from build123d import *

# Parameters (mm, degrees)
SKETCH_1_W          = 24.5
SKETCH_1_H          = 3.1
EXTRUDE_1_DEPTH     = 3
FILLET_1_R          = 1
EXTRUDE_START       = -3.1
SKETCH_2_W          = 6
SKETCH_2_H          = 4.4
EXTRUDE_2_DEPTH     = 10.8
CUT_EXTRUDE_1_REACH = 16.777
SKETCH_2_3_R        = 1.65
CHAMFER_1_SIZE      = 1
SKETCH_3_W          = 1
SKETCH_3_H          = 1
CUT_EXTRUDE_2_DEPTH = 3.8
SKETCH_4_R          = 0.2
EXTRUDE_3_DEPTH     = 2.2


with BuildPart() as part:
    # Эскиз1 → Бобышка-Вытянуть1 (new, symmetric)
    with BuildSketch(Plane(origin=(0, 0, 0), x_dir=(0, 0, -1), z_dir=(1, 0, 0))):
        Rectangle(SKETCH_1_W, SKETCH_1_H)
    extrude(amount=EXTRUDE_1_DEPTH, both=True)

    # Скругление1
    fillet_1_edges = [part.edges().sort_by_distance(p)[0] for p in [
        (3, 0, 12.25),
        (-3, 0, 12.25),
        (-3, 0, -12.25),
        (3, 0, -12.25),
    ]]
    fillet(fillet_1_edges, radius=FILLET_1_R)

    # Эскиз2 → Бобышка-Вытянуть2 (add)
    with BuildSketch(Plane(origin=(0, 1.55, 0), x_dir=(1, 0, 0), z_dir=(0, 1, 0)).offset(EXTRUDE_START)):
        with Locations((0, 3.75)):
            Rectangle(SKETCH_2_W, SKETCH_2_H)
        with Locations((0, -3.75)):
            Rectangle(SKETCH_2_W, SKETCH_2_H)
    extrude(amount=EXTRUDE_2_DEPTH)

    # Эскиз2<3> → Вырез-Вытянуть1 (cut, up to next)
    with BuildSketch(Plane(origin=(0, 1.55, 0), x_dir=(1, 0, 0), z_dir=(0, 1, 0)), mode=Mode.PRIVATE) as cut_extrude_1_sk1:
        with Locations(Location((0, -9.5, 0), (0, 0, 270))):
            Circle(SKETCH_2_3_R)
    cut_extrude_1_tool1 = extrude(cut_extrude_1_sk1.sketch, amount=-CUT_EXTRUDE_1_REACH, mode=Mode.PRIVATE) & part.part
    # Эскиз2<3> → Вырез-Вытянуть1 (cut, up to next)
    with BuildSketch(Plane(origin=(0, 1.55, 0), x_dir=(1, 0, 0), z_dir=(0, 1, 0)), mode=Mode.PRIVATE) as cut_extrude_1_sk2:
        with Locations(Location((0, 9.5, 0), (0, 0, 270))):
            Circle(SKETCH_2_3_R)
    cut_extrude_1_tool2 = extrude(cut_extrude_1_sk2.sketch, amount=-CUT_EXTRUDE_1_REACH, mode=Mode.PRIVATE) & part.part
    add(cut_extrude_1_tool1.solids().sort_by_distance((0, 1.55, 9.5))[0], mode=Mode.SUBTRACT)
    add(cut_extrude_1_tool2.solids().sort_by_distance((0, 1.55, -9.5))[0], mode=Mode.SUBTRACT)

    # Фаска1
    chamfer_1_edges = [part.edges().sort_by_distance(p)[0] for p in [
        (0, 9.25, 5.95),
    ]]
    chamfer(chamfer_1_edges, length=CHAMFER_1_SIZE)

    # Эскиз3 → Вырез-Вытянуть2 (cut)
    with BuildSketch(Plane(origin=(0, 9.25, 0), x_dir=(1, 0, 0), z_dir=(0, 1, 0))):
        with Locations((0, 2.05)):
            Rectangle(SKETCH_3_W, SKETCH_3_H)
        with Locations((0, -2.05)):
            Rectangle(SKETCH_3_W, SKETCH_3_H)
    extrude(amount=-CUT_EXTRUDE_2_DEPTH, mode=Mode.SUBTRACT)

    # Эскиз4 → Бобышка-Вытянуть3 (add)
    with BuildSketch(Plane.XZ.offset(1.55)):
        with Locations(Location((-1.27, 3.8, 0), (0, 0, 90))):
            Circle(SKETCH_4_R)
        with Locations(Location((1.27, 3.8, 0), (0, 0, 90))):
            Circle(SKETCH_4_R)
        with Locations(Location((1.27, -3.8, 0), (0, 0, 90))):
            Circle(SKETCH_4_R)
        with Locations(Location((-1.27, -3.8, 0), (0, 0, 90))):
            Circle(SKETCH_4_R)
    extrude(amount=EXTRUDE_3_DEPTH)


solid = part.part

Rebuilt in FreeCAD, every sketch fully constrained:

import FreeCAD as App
import Part
import Sketcher
from FreeCAD import Vector
Q = App.Units.Quantity


def edges_at(feature, points):
    """Names of the edges that pass closest to the given points."""
    edges = feature.Shape.Edges
    near = lambda p: min(range(len(edges)), key=lambda i: edges[i].distToShape(Part.Vertex(*p))[0])
    return sorted({f"Edge{near(p) + 1}" for p in points})


def add_polygon(sketch, points):
    """Adds a closed chain of lines whose ends are joined by coincident constraints."""
    first, n = sketch.GeometryCount, len(points)
    for a, b in zip(points, points[1:] + points[:1]):
        sketch.addGeometry(Part.LineSegment(App.Vector(*a, 0), App.Vector(*b, 0)), False)
    for i in range(n):
        sketch.addConstraint(Sketcher.Constraint("Coincident", first + i, 2, first + (i + 1) % n, 1))

doc = App.newDocument("Part")
body = doc.addObject("PartDesign::Body", "Body")

# Sketch on YZ plane
sketch1 = body.newObject("Sketcher::SketchObject", "Sketch")
sketch1.AttachmentSupport = (doc.getObject("YZ_Plane"), [""])
sketch1.MapMode = "FlatFace"
add_polygon(sketch1, [(1.55, 12.25), (-1.55, 12.25), (-1.55, -12.25), (1.55, -12.25)])  # lines 0-3
sketch1.addConstraint([
    Sketcher.Constraint("Horizontal", 0),
    Sketcher.Constraint("Vertical", 1),
    Sketcher.Constraint("Horizontal", 2),
    Sketcher.Constraint("Vertical", 3),
    Sketcher.Constraint("Symmetric", 0, 2, 2, 2, -1, 1),
    Sketcher.Constraint("DistanceX", 0, 2, 0, 1, Q("3.1 mm")),
    Sketcher.Constraint("DistanceY", 1, 2, 1, 1, Q("24.5 mm")),
])
pad1 = body.newObject("PartDesign::Pad", "Pad")
pad1.Profile = sketch1
pad1.Length = 6
pad1.Midplane = True
doc.recompute()

fillet = body.newObject("PartDesign::Fillet", "Fillet")
fillet.Base = (pad1, edges_at(pad1, [
    (3, 0, 12.25),
    (-3, 0, 12.25),
    (-3, 0, -12.25),
    (3, 0, -12.25),
]))
fillet.Radius = 1

# Sketch on XZ plane
sketch2 = body.newObject("Sketcher::SketchObject", "Sketch001")
sketch2.AttachmentSupport = (doc.getObject("XZ_Plane"), [""])
sketch2.MapMode = "FlatFace"
sketch2.AttachmentOffset = App.Placement(Vector(0, 0, 1.55), App.Rotation())
add_polygon(sketch2, [(-3, -5.95), (-3, -1.55), (3, -1.55), (3, -5.95)])  # lines 0-3
add_polygon(sketch2, [(-3, 1.55), (-3, 5.95), (3, 5.95), (3, 1.55)])  # lines 4-7
sketch2.addConstraint([
    Sketcher.Constraint("Vertical", 0),
    Sketcher.Constraint("Horizontal", 1),
    Sketcher.Constraint("Vertical", 2),
    Sketcher.Constraint("Horizontal", 3),
    Sketcher.Constraint("Vertical", 4),
    Sketcher.Constraint("Horizontal", 5),
    Sketcher.Constraint("Vertical", 6),
    Sketcher.Constraint("Horizontal", 7),
    Sketcher.Constraint("Symmetric", 2, 2, 4, 2, -1, 1),
    Sketcher.Constraint("Symmetric", 0, 2, 6, 2, -1, 1),
    Sketcher.Constraint("Vertical", 3, 2, 4, 2),
    Sketcher.Constraint("DistanceX", 1, 1, 1, 2, Q("6 mm")),
    Sketcher.Constraint("DistanceY", 0, 1, 0, 2, Q("4.4 mm")),
    Sketcher.Constraint("DistanceY", 0, 2, 4, 2, Q("7.5 mm")),
])
pad2 = body.newObject("PartDesign::Pad", "Pad001")
pad2.Profile = sketch2
pad2.Length = 10.8
pad2.Reversed = True

# Sketch on XZ plane
sketch3 = body.newObject("Sketcher::SketchObject", "Sketch002")
sketch3.AttachmentSupport = (doc.getObject("XZ_Plane"), [""])
sketch3.MapMode = "FlatFace"
sketch3.AttachmentOffset = App.Placement(Vector(0, 0, -1.55), App.Rotation())
sketch3.addGeometry(Part.Circle(Vector(0, 9.5, 0), Vector(0, 0, 1), 1.65), False)
sketch3.addConstraint([
    Sketcher.Constraint("PointOnObject", 0, 3, -2),
    Sketcher.Constraint("Diameter", 0, Q("3.3 mm")),
    Sketcher.Constraint("DistanceY", -1, 1, 0, 3, Q("9.5 mm")),
])
pocket1 = body.newObject("PartDesign::Pocket", "Pocket")
pocket1.Profile = sketch3
pocket1.Type = "UpToFirst"
pocket1.Reversed = True

# Sketch on XZ plane
sketch4 = body.newObject("Sketcher::SketchObject", "Sketch003")
sketch4.AttachmentSupport = (doc.getObject("XZ_Plane"), [""])
sketch4.MapMode = "FlatFace"
sketch4.AttachmentOffset = App.Placement(Vector(0, 0, -1.55), App.Rotation())
sketch4.addGeometry(Part.Circle(Vector(0, -9.5, 0), Vector(0, 0, 1), 1.65), False)
sketch4.addConstraint([
    Sketcher.Constraint("PointOnObject", 0, 3, -2),
    Sketcher.Constraint("Diameter", 0, Q("3.3 mm")),
    Sketcher.Constraint("DistanceY", 0, 3, -1, 1, Q("9.5 mm")),
])
pocket2 = body.newObject("PartDesign::Pocket", "Pocket001")
pocket2.Profile = sketch4
pocket2.Type = "UpToFirst"
pocket2.Reversed = True
doc.recompute()

chamfer = body.newObject("PartDesign::Chamfer", "Chamfer")
chamfer.Base = (pocket2, edges_at(pocket2, [(0, 9.25, 5.95)]))
chamfer.Size = 1

# Sketch on XZ plane
sketch5 = body.newObject("Sketcher::SketchObject", "Sketch004")
sketch5.AttachmentSupport = (doc.getObject("XZ_Plane"), [""])
sketch5.MapMode = "FlatFace"
sketch5.AttachmentOffset = App.Placement(Vector(0, 0, -9.25), App.Rotation())
add_polygon(sketch5, [(-0.5, -2.55), (-0.5, -1.55), (0.5, -1.55), (0.5, -2.55)])  # lines 0-3
add_polygon(sketch5, [(-0.5, 1.55), (-0.5, 2.55), (0.5, 2.55), (0.5, 1.55)])  # lines 4-7
sketch5.addConstraint([
    Sketcher.Constraint("Vertical", 0),
    Sketcher.Constraint("Horizontal", 1),
    Sketcher.Constraint("Vertical", 2),
    Sketcher.Constraint("Horizontal", 3),
    Sketcher.Constraint("Vertical", 4),
    Sketcher.Constraint("Horizontal", 5),
    Sketcher.Constraint("Vertical", 6),
    Sketcher.Constraint("Horizontal", 7),
    Sketcher.Constraint("Symmetric", 2, 2, 4, 2, -1, 1),
    Sketcher.Constraint("Symmetric", 0, 2, 6, 2, -1, 1),
    Sketcher.Constraint("Vertical", 3, 2, 4, 2),
    Sketcher.Constraint("Equal", 7, 0),
    Sketcher.Constraint("DistanceX", 1, 1, 1, 2, Q("1 mm")),
    Sketcher.Constraint("DistanceY", 0, 2, 4, 2, Q("4.1 mm")),
])
pocket3 = body.newObject("PartDesign::Pocket", "Pocket002")
pocket3.Profile = sketch5
pocket3.Length = 3.8
pocket3.Reversed = True

# Sketch on XZ plane
sketch6 = body.newObject("Sketcher::SketchObject", "Sketch005")
sketch6.AttachmentSupport = (doc.getObject("XZ_Plane"), [""])
sketch6.MapMode = "FlatFace"
sketch6.AttachmentOffset = App.Placement(Vector(0, 0, 1.55), App.Rotation())
sketch6.addGeometry([
    Part.Circle(Vector(-1.27, 3.8, 0), Vector(0, 0, 1), 0.2),
    Part.Circle(Vector(1.27, 3.8, 0), Vector(0, 0, 1), 0.2),
    Part.Circle(Vector(1.27, -3.8, 0), Vector(0, 0, 1), 0.2),
    Part.Circle(Vector(-1.27, -3.8, 0), Vector(0, 0, 1), 0.2),
], False)
sketch6.addConstraint([
    Sketcher.Constraint("Equal", 0, 1),
    Sketcher.Constraint("Equal", 1, 2),
    Sketcher.Constraint("Equal", 2, 3),
    Sketcher.Constraint("Symmetric", 0, 3, 2, 3, -1, 1),
    Sketcher.Constraint("Symmetric", 1, 3, 3, 3, -1, 1),
    Sketcher.Constraint("Symmetric", 0, 3, 1, 3, -2),
    Sketcher.Constraint("Diameter", 0, Q("0.4 mm")),
    Sketcher.Constraint("DistanceY", -1, 1, 0, 3, Q("3.8 mm")),
    Sketcher.Constraint("DistanceX", 0, 3, -1, 1, Q("1.27 mm")),
])
pad3 = body.newObject("PartDesign::Pad", "Pad002")
pad3.Profile = sketch6
pad3.Length = 2.2

doc.recompute()
